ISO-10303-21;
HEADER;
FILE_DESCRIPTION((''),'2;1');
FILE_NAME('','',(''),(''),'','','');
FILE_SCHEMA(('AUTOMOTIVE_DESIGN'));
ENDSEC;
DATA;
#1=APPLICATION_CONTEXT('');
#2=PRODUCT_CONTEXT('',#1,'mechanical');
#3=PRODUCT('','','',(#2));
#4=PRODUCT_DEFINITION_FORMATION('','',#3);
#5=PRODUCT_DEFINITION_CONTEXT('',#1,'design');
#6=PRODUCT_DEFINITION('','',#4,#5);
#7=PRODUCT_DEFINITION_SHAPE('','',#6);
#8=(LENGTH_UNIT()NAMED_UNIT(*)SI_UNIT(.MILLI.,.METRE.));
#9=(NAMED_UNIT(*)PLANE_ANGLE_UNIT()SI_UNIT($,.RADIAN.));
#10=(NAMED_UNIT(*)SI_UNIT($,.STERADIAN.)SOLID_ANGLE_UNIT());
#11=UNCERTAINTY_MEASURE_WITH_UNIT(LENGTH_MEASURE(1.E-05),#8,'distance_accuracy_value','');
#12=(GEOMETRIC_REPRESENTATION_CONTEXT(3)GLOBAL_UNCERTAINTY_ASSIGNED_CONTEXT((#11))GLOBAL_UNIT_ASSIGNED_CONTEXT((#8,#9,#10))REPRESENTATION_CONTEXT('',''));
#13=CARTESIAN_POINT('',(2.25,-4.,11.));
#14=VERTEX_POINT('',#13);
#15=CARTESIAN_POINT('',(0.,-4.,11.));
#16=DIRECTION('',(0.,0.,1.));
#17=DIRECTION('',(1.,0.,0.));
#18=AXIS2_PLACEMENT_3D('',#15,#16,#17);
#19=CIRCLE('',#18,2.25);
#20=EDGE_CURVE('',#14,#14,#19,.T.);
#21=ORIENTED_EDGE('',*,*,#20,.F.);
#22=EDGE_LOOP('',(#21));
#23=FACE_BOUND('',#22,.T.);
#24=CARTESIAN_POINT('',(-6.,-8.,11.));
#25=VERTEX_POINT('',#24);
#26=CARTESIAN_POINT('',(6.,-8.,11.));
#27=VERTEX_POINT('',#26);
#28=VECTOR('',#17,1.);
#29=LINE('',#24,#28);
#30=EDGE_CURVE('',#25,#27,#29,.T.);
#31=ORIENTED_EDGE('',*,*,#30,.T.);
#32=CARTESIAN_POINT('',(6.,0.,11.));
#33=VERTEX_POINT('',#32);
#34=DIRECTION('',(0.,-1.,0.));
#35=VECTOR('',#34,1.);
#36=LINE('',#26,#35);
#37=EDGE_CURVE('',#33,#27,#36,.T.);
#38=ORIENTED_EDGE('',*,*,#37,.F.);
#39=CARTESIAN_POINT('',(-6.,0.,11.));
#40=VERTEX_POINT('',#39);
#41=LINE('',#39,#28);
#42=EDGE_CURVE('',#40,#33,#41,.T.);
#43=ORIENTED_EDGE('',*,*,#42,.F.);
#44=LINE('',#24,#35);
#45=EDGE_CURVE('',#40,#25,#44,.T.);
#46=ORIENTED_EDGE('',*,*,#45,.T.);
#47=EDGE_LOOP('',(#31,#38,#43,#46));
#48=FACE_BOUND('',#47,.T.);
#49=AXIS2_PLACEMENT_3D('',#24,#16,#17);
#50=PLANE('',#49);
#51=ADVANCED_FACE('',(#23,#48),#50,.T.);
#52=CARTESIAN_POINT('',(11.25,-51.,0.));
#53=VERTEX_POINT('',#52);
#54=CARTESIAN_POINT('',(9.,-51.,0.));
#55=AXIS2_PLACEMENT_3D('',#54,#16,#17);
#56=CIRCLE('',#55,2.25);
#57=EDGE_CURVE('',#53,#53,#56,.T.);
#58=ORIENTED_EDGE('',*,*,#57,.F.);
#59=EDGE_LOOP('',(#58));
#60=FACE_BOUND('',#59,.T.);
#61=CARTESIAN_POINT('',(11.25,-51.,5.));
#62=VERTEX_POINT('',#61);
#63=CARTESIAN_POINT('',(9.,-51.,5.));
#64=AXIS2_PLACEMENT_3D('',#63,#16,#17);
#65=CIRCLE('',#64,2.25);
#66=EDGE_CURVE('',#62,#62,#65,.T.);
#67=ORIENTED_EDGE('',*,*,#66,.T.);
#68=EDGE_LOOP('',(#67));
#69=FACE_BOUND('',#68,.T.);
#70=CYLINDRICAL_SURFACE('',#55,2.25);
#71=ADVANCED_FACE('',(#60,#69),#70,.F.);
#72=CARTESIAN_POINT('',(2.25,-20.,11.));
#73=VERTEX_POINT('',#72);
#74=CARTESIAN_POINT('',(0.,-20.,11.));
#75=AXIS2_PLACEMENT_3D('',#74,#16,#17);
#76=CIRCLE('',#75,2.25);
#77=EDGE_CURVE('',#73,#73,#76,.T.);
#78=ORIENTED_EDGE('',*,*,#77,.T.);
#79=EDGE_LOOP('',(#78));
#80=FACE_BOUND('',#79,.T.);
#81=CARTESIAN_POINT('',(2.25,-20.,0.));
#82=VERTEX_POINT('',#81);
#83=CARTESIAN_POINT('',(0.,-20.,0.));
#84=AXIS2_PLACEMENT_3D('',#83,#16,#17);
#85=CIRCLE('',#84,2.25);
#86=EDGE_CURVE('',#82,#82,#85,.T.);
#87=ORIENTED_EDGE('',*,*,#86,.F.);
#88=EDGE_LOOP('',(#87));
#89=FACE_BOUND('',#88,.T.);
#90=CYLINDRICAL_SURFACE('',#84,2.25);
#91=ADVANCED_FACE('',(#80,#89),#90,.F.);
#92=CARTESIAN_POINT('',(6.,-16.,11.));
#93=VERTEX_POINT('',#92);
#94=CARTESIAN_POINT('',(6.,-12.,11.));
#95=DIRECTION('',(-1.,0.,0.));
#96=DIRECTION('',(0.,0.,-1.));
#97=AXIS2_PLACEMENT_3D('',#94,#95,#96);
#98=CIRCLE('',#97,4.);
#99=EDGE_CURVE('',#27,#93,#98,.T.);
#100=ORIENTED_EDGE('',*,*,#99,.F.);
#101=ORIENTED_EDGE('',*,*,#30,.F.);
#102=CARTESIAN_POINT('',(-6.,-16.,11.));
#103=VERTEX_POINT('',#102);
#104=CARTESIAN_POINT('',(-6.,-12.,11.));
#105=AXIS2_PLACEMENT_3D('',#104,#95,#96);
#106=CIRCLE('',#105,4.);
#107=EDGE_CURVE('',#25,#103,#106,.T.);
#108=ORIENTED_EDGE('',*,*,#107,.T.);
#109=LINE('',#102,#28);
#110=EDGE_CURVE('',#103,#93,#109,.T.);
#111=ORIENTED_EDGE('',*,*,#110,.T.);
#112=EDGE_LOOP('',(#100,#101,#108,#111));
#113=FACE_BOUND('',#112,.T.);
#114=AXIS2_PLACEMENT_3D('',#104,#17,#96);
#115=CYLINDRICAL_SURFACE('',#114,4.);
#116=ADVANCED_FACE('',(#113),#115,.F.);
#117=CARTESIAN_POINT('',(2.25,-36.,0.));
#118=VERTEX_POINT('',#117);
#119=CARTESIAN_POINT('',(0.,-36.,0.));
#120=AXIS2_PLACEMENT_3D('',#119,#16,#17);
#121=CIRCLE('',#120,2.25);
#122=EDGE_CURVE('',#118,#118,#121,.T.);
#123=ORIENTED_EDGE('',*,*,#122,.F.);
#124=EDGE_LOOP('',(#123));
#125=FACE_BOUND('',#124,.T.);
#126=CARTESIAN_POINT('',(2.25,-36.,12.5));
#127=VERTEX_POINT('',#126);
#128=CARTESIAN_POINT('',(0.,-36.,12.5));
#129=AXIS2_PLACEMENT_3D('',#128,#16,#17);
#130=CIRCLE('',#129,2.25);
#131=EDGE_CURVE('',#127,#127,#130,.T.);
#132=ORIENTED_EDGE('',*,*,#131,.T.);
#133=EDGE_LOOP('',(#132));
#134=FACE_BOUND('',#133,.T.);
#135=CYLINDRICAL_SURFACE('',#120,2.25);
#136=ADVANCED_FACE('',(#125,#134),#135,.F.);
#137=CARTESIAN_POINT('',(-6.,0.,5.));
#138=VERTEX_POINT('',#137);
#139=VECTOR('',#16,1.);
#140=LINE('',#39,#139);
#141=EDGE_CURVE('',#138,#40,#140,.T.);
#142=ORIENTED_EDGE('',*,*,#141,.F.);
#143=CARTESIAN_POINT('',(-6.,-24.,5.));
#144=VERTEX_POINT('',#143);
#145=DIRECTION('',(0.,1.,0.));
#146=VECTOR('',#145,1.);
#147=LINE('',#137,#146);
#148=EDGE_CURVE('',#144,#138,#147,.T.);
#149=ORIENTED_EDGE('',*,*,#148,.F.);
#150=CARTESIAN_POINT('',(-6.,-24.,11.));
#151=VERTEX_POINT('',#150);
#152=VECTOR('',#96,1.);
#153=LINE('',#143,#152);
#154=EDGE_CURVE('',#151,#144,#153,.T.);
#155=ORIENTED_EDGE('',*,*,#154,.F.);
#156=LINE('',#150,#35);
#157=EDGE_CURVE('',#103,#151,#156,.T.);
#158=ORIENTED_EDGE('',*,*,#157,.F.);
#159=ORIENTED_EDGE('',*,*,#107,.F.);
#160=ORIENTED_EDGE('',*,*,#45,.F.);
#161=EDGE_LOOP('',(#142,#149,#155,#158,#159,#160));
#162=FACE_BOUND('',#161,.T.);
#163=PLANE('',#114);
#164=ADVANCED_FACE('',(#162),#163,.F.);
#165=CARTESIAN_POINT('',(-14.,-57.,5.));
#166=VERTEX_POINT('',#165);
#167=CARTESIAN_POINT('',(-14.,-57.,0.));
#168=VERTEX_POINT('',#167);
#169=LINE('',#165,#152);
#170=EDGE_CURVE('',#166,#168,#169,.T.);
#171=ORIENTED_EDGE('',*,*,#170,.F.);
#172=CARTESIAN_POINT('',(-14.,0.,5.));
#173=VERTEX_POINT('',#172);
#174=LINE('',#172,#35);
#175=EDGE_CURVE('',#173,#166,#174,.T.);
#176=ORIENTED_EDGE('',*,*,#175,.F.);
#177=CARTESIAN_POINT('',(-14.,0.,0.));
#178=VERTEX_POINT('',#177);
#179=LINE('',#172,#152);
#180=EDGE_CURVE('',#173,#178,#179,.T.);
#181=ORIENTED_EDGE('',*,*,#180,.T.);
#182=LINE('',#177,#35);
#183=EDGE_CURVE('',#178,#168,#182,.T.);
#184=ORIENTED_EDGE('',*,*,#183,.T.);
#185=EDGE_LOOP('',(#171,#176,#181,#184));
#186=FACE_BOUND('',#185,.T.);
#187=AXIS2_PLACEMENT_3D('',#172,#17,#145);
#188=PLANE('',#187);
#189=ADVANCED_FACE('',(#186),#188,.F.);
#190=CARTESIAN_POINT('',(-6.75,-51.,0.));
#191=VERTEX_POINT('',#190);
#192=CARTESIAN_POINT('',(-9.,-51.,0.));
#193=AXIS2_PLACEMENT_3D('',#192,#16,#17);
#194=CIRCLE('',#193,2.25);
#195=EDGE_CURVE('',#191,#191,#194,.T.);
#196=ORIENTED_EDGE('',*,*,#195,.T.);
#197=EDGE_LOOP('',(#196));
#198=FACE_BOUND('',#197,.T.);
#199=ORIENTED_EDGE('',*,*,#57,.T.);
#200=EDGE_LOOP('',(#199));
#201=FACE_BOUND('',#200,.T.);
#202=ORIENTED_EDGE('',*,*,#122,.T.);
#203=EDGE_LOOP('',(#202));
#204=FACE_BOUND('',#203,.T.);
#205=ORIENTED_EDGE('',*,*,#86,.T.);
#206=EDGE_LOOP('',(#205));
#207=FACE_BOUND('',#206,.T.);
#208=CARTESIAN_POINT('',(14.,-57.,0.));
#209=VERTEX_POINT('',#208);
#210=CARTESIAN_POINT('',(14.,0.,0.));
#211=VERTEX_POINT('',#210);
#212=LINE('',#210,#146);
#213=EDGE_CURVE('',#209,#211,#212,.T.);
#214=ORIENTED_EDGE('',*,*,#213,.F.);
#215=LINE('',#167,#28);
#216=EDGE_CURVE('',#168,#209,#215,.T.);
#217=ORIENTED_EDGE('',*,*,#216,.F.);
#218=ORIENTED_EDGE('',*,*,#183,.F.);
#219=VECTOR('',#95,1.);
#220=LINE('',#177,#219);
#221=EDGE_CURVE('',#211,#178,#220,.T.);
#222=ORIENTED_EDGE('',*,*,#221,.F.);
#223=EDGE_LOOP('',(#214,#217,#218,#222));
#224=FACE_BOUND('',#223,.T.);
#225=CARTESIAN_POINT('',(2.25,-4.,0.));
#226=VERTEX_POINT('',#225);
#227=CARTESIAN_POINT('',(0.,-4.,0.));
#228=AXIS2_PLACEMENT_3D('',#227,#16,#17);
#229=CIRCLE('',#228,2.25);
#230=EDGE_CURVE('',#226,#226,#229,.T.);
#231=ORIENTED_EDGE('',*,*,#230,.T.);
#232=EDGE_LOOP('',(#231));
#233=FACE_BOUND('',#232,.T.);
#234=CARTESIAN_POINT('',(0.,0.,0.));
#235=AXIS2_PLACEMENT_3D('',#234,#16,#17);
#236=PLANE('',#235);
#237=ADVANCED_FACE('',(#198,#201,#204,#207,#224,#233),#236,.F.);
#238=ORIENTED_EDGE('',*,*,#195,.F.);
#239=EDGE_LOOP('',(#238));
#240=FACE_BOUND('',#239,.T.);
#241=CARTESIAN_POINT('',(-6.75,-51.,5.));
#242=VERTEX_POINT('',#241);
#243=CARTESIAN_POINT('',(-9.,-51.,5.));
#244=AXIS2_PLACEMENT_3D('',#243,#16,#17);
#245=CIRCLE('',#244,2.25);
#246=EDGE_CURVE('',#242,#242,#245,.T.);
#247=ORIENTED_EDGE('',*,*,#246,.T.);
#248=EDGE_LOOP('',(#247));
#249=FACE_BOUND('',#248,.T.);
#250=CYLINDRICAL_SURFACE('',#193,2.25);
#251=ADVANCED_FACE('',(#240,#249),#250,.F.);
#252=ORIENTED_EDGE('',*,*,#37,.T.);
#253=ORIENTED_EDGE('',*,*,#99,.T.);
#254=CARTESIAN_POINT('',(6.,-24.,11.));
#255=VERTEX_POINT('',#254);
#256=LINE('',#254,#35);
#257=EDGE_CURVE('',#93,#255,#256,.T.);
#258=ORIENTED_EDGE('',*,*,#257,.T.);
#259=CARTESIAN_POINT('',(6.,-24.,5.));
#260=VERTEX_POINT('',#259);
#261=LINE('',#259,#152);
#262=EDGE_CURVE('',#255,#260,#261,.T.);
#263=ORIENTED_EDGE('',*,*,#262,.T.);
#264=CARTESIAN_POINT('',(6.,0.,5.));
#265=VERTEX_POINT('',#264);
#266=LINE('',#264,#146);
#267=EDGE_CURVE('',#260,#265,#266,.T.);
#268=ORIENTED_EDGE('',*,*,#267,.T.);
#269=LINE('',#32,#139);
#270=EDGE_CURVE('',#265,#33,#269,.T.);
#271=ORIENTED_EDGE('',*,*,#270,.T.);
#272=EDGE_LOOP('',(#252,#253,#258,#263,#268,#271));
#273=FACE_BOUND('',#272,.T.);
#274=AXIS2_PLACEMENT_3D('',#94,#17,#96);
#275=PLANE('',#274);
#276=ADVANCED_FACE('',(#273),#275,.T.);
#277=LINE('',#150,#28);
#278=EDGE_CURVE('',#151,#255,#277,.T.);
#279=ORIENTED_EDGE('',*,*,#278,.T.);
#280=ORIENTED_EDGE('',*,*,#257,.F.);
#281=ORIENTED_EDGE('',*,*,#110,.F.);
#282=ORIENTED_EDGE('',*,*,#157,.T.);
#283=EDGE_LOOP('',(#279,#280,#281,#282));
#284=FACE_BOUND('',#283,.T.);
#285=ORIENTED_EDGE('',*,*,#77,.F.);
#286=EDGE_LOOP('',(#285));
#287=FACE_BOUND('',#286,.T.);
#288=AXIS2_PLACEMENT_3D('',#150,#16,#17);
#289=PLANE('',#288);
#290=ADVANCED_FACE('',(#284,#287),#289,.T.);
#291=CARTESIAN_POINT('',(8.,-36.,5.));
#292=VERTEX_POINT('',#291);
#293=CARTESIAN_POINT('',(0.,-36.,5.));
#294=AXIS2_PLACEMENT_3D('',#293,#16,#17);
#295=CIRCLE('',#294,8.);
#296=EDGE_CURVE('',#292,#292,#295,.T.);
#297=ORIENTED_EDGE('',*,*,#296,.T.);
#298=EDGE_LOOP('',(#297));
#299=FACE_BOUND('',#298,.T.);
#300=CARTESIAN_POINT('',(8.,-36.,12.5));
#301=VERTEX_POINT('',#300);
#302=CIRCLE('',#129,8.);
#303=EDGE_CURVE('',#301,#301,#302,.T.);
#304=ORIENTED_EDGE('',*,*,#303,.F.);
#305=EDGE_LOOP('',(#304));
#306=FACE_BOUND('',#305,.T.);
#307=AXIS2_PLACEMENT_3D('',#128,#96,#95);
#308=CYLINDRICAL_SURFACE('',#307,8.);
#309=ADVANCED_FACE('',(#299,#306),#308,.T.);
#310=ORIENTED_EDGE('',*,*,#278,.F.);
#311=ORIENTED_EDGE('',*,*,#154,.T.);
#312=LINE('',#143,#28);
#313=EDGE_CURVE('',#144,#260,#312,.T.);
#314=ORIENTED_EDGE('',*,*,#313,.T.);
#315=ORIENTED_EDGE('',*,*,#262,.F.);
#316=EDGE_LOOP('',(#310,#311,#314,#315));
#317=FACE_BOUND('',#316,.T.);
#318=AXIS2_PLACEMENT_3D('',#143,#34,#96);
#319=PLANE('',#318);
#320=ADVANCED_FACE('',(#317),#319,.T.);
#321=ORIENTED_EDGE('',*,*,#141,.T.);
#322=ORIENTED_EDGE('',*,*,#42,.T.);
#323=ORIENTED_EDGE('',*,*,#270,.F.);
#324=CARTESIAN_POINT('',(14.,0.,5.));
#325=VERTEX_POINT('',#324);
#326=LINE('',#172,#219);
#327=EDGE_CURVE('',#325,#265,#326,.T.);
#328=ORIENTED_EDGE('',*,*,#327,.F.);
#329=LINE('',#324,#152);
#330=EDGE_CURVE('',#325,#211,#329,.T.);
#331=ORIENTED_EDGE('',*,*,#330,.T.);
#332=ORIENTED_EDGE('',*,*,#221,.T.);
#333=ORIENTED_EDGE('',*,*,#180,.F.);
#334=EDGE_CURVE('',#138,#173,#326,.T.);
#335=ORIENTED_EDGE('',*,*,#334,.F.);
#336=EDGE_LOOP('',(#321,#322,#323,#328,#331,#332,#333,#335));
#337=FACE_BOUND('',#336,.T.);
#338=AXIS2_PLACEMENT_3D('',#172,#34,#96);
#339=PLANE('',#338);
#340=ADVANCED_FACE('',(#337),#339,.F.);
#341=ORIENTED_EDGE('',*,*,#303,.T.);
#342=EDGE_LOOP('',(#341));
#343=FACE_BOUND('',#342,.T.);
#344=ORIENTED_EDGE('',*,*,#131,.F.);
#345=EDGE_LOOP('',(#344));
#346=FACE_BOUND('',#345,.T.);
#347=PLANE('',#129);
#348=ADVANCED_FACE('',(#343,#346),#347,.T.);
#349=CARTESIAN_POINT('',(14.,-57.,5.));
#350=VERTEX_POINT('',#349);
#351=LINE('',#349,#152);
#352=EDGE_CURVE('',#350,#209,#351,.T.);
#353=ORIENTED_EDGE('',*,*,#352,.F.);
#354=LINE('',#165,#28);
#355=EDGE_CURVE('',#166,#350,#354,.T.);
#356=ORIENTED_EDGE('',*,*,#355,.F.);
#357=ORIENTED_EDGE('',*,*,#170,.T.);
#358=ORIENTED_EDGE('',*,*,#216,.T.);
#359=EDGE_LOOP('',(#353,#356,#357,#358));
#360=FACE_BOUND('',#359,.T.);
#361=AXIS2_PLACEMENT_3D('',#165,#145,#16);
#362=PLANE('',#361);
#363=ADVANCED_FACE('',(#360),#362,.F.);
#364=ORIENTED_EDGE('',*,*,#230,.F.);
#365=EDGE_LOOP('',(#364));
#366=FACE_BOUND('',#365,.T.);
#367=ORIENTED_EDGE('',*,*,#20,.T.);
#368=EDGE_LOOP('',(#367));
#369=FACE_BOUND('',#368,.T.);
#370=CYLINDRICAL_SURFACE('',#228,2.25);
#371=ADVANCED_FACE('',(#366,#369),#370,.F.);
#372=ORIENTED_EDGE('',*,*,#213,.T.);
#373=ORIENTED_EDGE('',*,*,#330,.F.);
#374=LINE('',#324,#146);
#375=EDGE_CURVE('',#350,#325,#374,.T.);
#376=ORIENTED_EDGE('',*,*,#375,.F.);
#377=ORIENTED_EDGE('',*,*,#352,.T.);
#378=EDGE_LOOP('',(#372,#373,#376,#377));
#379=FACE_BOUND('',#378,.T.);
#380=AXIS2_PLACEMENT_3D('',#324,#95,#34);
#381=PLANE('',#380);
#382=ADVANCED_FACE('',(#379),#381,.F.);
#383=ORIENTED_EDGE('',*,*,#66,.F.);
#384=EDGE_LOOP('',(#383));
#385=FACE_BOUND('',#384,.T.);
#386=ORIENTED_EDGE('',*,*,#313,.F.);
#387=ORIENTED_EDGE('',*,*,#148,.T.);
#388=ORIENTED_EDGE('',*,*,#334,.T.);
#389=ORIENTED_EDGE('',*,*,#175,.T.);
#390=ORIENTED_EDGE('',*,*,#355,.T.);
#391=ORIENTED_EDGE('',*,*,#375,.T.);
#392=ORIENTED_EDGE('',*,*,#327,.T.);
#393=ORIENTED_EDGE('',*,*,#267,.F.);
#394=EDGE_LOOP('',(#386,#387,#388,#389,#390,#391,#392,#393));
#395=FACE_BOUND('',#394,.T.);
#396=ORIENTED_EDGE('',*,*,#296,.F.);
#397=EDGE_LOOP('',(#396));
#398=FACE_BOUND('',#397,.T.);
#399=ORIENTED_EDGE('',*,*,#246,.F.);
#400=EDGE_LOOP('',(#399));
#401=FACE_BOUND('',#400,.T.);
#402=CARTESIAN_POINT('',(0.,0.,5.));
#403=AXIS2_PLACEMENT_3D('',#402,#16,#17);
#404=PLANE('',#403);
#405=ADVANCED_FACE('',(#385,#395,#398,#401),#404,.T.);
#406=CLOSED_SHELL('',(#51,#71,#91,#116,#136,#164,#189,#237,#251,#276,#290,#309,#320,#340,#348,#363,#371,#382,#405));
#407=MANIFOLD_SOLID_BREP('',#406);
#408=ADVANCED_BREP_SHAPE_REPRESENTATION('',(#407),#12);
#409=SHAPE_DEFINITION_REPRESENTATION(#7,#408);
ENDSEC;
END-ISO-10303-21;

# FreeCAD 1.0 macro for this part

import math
import FreeCAD as App
import Part
import Sketcher

V = App.Vector
Q = App.Units.Quantity

doc = App.newDocument("Part")
body = doc.addObject("PartDesign::Body", "Body")

# Sketch on XY plane
sketch1 = doc.addObject("Sketcher::SketchObject", "Sketch")
body.addObject(sketch1)
sketch1.AttachmentSupport = (doc.XY_Plane, [""])
sketch1.MapMode = "FlatFace"
sketch1.addGeometry([
    Part.LineSegment(V(-14, 0, 0), V(-14, -57, 0)),
    Part.LineSegment(V(-14, -57, 0), V(14, -57, 0)),
    Part.LineSegment(V(14, -57, 0), V(14, 0, 0)),
    Part.LineSegment(V(14, 0, 0), V(-14, 0, 0)),
], False)
sketch1.addConstraint([
    Sketcher.Constraint("Coincident", 0, 2, 1, 1),
    Sketcher.Constraint("Coincident", 1, 2, 2, 1),
    Sketcher.Constraint("Coincident", 2, 2, 3, 1),
    Sketcher.Constraint("Coincident", 3, 2, 0, 1),
    Sketcher.Constraint("Vertical", 0),
    Sketcher.Constraint("Horizontal", 1),
    Sketcher.Constraint("Vertical", 2),
    Sketcher.Constraint("Horizontal", 3),
    Sketcher.Constraint("Symmetric", 2, 2, 3, 2, -1, 1),
    Sketcher.Constraint("DistanceX", 1, 1, 1, 2, Q("28 mm")),
    Sketcher.Constraint("DistanceY", 0, 2, 0, 1, Q("57 mm")),
])
pad1 = doc.addObject("PartDesign::Pad", "Pad")
body.addObject(pad1)
pad1.Profile = sketch1
pad1.Length = 5

# Sketch on YZ plane
sketch2 = doc.addObject("Sketcher::SketchObject", "Sketch001")
body.addObject(sketch2)
sketch2.AttachmentSupport = (doc.YZ_Plane, [""])
sketch2.MapMode = "FlatFace"
sketch2.addGeometry([
    Part.LineSegment(V(-24, 5, 0), V(0, 5, 0)),  # 0
    Part.LineSegment(V(0, 5, 0), V(0, 11, 0)),  # 1
    Part.LineSegment(V(0, 11, 0), V(-8, 11, 0)),  # 2
    Part.ArcOfCircle(Part.Circle(V(-12, 11, 0), V(0, 0, 1), 4), math.radians(180), math.radians(360)),  # 3
    Part.LineSegment(V(-16, 11, 0), V(-24, 11, 0)),  # 4
    Part.LineSegment(V(-24, 11, 0), V(-24, 5, 0)),  # 5
], False)
sketch2.addConstraint([
    Sketcher.Constraint("Coincident", 0, 2, 1, 1),
    Sketcher.Constraint("Coincident", 1, 2, 2, 1),
    Sketcher.Constraint("Coincident", 2, 2, 3, 2),
    Sketcher.Constraint("Coincident", 3, 1, 4, 1),
    Sketcher.Constraint("Coincident", 4, 2, 5, 1),
    Sketcher.Constraint("Coincident", 5, 2, 0, 1),
    Sketcher.Constraint("Horizontal", 0),
    Sketcher.Constraint("Vertical", 1),
    Sketcher.Constraint("Horizontal", 2),
    Sketcher.Constraint("Horizontal", 4),
    Sketcher.Constraint("Vertical", 5),
    Sketcher.Constraint("PointOnObject", 0, 2, -2),
    Sketcher.Constraint("Horizontal", 3, 3, 1, 2),
    Sketcher.Constraint("Horizontal", 2, 2, 3, 1),
    Sketcher.Constraint("Equal", 2, 4),
    Sketcher.Constraint("Radius", 3, Q("4 mm")),
    Sketcher.Constraint("DistanceX", 0, 1, 0, 2, Q("24 mm")),
    Sketcher.Constraint("DistanceY", 1, 1, 1, 2, Q("6 mm")),
    Sketcher.Constraint("DistanceY", -1, 1, 3, 3, Q("11 mm")),
])
pad2 = doc.addObject("PartDesign::Pad", "Pad001")
body.addObject(pad2)
pad2.Profile = sketch2
pad2.Length = 12
pad2.Midplane = True

# Sketch on XY plane
sketch3 = doc.addObject("Sketcher::SketchObject", "Sketch002")
body.addObject(sketch3)
sketch3.AttachmentSupport = (doc.XY_Plane, [""])
sketch3.MapMode = "FlatFace"
sketch3.AttachmentOffset = App.Placement(V(0, 0, 11), App.Rotation())
sketch3.addGeometry([
    Part.Circle(V(0, -4, 0), V(0, 0, 1), 2.25),
    Part.Circle(V(0, -20, 0), V(0, 0, 1), 2.25),
], False)
sketch3.addConstraint([
    Sketcher.Constraint("Equal", 0, 1),
    Sketcher.Constraint("PointOnObject", 0, 3, -2),
    Sketcher.Constraint("PointOnObject", 1, 3, -2),
    Sketcher.Constraint("Diameter", 0, Q("4.5 mm")),
    Sketcher.Constraint("DistanceY", 0, 3, -1, 1, Q("4 mm")),
    Sketcher.Constraint("DistanceY", 1, 3, -1, 1, Q("20 mm")),
])
pocket1 = doc.addObject("PartDesign::Pocket", "Pocket")
body.addObject(pocket1)
pocket1.Profile = sketch3
pocket1.Type = "ThroughAll"

# Sketch on XY plane
sketch4 = doc.addObject("Sketcher::SketchObject", "Sketch003")
body.addObject(sketch4)
sketch4.AttachmentSupport = (doc.XY_Plane, [""])
sketch4.MapMode = "FlatFace"
sketch4.AttachmentOffset = App.Placement(V(0, 0, 5), App.Rotation())
sketch4.addGeometry([
    Part.Circle(V(-9, -51, 0), V(0, 0, 1), 2.25),
    Part.Circle(V(9, -51, 0), V(0, 0, 1), 2.25),
], False)
sketch4.addConstraint([
    Sketcher.Constraint("Equal", 0, 1),
    Sketcher.Constraint("Symmetric", 0, 3, 1, 3, -2),
    Sketcher.Constraint("Diameter", 0, Q("4.5 mm")),
    Sketcher.Constraint("DistanceX", 0, 3, -1, 1, Q("9 mm")),
    Sketcher.Constraint("DistanceY", 0, 3, -1, 1, Q("51 mm")),
])
pocket2 = doc.addObject("PartDesign::Pocket", "Pocket001")
body.addObject(pocket2)
pocket2.Profile = sketch4
pocket2.Type = "ThroughAll"

# Sketch on XY plane
sketch5 = doc.addObject("Sketcher::SketchObject", "Sketch004")
body.addObject(sketch5)
sketch5.AttachmentSupport = (doc.XY_Plane, [""])
sketch5.MapMode = "FlatFace"
sketch5.AttachmentOffset = App.Placement(V(0, 0, 5), App.Rotation())
sketch5.addGeometry(Part.Circle(V(0, -36, 0), V(0, 0, 1), 8), False)
sketch5.addConstraint([
    Sketcher.Constraint("PointOnObject", 0, 3, -2),
    Sketcher.Constraint("Diameter", 0, Q("16 mm")),
    Sketcher.Constraint("DistanceY", 0, 3, -1, 1, Q("36 mm")),
])
pad3 = doc.addObject("PartDesign::Pad", "Pad002")
body.addObject(pad3)
pad3.Profile = sketch5
pad3.Length = 7.5

# Sketch on XY plane
sketch6 = doc.addObject("Sketcher::SketchObject", "Sketch005")
body.addObject(sketch6)
sketch6.AttachmentSupport = (doc.XY_Plane, [""])
sketch6.MapMode = "FlatFace"
sketch6.AttachmentOffset = App.Placement(V(0, 0, 12.5), App.Rotation())
sketch6.addGeometry(Part.Circle(V(0, -36, 0), V(0, 0, 1), 2.25), False)
sketch6.addConstraint([
    Sketcher.Constraint("PointOnObject", 0, 3, -2),
    Sketcher.Constraint("Diameter", 0, Q("4.5 mm")),
    Sketcher.Constraint("DistanceY", 0, 3, -1, 1, Q("36 mm")),
])
pocket3 = doc.addObject("PartDesign::Pocket", "Pocket002")
body.addObject(pocket3)
pocket3.Profile = sketch6
pocket3.Type = "ThroughAll"

doc.recompute()
